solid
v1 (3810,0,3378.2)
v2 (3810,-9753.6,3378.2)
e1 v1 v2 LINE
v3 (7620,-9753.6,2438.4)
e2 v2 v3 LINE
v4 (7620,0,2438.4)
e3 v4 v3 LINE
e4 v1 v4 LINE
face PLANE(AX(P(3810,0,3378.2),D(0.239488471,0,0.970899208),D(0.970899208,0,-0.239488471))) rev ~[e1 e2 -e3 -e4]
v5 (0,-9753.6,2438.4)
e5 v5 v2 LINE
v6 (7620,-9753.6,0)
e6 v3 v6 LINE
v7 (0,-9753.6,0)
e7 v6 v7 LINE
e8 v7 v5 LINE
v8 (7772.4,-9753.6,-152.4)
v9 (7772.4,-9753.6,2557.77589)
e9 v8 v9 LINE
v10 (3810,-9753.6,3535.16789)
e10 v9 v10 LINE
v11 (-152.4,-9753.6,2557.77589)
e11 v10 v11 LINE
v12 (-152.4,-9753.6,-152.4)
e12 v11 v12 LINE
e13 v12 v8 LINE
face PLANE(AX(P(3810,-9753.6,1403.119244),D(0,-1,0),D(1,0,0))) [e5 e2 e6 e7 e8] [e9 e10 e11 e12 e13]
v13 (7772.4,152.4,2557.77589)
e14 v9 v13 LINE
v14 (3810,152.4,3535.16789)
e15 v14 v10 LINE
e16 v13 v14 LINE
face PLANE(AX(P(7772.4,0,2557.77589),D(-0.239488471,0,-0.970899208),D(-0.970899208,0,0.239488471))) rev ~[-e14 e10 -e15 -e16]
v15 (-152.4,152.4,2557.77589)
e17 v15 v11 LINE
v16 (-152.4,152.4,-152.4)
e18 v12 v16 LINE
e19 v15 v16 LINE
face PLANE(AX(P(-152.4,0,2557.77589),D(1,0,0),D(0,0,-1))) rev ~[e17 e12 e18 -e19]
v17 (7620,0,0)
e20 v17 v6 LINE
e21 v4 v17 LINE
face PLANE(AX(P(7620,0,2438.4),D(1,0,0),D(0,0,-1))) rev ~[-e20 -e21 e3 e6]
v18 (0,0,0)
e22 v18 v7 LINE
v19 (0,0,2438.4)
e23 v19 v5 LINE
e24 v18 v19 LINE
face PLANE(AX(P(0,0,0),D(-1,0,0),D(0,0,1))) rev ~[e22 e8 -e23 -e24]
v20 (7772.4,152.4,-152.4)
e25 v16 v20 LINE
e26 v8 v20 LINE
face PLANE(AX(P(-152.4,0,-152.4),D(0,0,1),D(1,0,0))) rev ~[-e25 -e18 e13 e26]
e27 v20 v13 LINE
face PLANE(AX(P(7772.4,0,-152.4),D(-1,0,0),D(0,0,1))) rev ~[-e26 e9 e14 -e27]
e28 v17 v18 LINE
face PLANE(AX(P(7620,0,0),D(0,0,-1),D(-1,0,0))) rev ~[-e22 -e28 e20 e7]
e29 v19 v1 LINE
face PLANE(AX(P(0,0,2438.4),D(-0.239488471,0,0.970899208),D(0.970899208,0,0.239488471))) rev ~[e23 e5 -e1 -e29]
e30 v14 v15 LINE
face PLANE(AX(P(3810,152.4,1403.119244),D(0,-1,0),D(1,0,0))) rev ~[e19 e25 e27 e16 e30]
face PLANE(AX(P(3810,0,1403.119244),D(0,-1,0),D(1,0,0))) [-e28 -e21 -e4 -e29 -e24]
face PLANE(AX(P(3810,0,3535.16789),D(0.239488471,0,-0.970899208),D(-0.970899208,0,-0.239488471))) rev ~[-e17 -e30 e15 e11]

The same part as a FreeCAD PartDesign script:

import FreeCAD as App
import Part
import Sketcher
Q = App.Units.Quantity


def add_polygon(sketch, points):
    """Adds a closed chain of lines whose ends are joined by coincident constraints."""
    first, n = sketch.GeometryCount, len(points)
    for a, b in zip(points, points[1:] + points[:1]):
        sketch.addGeometry(Part.LineSegment(App.Vector(*a, 0), App.Vector(*b, 0)), False)
    for i in range(n):
        sketch.addConstraint(Sketcher.Constraint("Coincident", first + i, 2, first + (i + 1) % n, 1))

doc = App.newDocument("Part")
params = doc.addObject("Spreadsheet::Sheet", "Params")
for row, (alias, value) in enumerate([
    ("sketch1_width", "312 in"),
    ("pad1_length", "6 in"),
    ("sketch2_width", "312 in"),
    ("sketch2_width2", "300 in"),
    ("sketch2_height", "96 in"),
    ("pad2_length", "384 in"),
], start=1):
    params.set(f"A{row}", alias)
    params.set(f"B{row}", "=" + value)
    params.setAlias(f"B{row}", alias)

body = doc.addObject("PartDesign::Body", "Body")

sketch1 = body.newObject("Sketcher::SketchObject", "Sketch")
sketch1.AttachmentSupport = (doc.getObject("XZ_Plane"), [""])
sketch1.MapMode = "FlatFace"
add_polygon(sketch1, [(7772, 2558), (3810, 3535), (-152, 2558), (-152, -152), (7772, -152)])
sketch1.addConstraint([
    Sketcher.Constraint("Vertical", 2),
    Sketcher.Constraint("Horizontal", 3),
    Sketcher.Constraint("Vertical", 4),
    Sketcher.Constraint("Horizontal", 1, 2, 4, 2),
    Sketcher.Constraint("Equal", 0, 1),
    Sketcher.Constraint("DistanceX", 3, 1, 3, 2, Q("312 in")),
    Sketcher.Constraint("DistanceX", -1, 1, 0, 2, Q("150 in")),
    Sketcher.Constraint("DistanceY", 2, 2, -1, 1, Q("6 in")),
    Sketcher.Constraint("DistanceY", 1, 2, 0, 2, Q("38.48 in")),
    Sketcher.Constraint("DistanceY", 2, 2, 2, 1, Q("2710.17589 mm")),
])
sketch1.setExpression("Constraints[10]", "Params.sketch1_width")
pad1 = body.newObject("PartDesign::Pad", "Pad")
pad1.Profile = sketch1
pad1.setExpression("Length", "Params.pad1_length")
pad1.Reversed = True

sketch2 = body.newObject("Sketcher::SketchObject", "Sketch001")
sketch2.AttachmentSupport = (doc.getObject("XZ_Plane"), [""])
sketch2.MapMode = "FlatFace"
add_polygon(sketch2, [(7772, 2558), (3810, 3535), (-152, 2558), (-152, -152), (7772, -152)])
add_polygon(sketch2, [(7620, 2438), (7620, 0), (0, 0), (0, 2438), (3810, 3378)])
sketch2.addConstraint([
    Sketcher.Constraint("Vertical", 2),
    Sketcher.Constraint("Horizontal", 3),
    Sketcher.Constraint("Vertical", 4),
    Sketcher.Constraint("Vertical", 5),
    Sketcher.Constraint("Horizontal", 6),
    Sketcher.Constraint("Vertical", 7),
    Sketcher.Constraint("Coincident", 6, 2, -1, 1),
    Sketcher.Constraint("Parallel", 1, 8),
    Sketcher.Constraint("Parallel", 0, 9),
    Sketcher.Constraint("Horizontal", 1, 2, 4, 2),
    Sketcher.Constraint("Horizontal", 7, 2, 9, 2),
    Sketcher.Constraint("Vertical", 0, 2, 8, 2),
    Sketcher.Constraint("Equal", 0, 1),
    Sketcher.Constraint("DistanceX", 3, 1, 3, 2, Q("312 in")),
    Sketcher.Constraint("DistanceX", 6, 2, 6, 1, Q("300 in")),
    Sketcher.Constraint("DistanceY", 5, 2, 5, 1, Q("96 in")),
    Sketcher.Constraint("DistanceY", 2, 2, -1, 1, Q("6 in")),
    Sketcher.Constraint("DistanceY", -1, 1, 8, 2, Q("133 in")),
    Sketcher.Constraint("DistanceY", 2, 2, 2, 1, Q("2710.17589 mm")),
])
sketch2.setExpression("Constraints[23]", "Params.sketch2_width")
sketch2.setExpression("Constraints[24]", "Params.sketch2_width2")
sketch2.setExpression("Constraints[25]", "Params.sketch2_height")
pad2 = body.newObject("PartDesign::Pad", "Pad001")
pad2.Profile = sketch2
pad2.setExpression("Length", "Params.pad2_length")

doc.recompute()
